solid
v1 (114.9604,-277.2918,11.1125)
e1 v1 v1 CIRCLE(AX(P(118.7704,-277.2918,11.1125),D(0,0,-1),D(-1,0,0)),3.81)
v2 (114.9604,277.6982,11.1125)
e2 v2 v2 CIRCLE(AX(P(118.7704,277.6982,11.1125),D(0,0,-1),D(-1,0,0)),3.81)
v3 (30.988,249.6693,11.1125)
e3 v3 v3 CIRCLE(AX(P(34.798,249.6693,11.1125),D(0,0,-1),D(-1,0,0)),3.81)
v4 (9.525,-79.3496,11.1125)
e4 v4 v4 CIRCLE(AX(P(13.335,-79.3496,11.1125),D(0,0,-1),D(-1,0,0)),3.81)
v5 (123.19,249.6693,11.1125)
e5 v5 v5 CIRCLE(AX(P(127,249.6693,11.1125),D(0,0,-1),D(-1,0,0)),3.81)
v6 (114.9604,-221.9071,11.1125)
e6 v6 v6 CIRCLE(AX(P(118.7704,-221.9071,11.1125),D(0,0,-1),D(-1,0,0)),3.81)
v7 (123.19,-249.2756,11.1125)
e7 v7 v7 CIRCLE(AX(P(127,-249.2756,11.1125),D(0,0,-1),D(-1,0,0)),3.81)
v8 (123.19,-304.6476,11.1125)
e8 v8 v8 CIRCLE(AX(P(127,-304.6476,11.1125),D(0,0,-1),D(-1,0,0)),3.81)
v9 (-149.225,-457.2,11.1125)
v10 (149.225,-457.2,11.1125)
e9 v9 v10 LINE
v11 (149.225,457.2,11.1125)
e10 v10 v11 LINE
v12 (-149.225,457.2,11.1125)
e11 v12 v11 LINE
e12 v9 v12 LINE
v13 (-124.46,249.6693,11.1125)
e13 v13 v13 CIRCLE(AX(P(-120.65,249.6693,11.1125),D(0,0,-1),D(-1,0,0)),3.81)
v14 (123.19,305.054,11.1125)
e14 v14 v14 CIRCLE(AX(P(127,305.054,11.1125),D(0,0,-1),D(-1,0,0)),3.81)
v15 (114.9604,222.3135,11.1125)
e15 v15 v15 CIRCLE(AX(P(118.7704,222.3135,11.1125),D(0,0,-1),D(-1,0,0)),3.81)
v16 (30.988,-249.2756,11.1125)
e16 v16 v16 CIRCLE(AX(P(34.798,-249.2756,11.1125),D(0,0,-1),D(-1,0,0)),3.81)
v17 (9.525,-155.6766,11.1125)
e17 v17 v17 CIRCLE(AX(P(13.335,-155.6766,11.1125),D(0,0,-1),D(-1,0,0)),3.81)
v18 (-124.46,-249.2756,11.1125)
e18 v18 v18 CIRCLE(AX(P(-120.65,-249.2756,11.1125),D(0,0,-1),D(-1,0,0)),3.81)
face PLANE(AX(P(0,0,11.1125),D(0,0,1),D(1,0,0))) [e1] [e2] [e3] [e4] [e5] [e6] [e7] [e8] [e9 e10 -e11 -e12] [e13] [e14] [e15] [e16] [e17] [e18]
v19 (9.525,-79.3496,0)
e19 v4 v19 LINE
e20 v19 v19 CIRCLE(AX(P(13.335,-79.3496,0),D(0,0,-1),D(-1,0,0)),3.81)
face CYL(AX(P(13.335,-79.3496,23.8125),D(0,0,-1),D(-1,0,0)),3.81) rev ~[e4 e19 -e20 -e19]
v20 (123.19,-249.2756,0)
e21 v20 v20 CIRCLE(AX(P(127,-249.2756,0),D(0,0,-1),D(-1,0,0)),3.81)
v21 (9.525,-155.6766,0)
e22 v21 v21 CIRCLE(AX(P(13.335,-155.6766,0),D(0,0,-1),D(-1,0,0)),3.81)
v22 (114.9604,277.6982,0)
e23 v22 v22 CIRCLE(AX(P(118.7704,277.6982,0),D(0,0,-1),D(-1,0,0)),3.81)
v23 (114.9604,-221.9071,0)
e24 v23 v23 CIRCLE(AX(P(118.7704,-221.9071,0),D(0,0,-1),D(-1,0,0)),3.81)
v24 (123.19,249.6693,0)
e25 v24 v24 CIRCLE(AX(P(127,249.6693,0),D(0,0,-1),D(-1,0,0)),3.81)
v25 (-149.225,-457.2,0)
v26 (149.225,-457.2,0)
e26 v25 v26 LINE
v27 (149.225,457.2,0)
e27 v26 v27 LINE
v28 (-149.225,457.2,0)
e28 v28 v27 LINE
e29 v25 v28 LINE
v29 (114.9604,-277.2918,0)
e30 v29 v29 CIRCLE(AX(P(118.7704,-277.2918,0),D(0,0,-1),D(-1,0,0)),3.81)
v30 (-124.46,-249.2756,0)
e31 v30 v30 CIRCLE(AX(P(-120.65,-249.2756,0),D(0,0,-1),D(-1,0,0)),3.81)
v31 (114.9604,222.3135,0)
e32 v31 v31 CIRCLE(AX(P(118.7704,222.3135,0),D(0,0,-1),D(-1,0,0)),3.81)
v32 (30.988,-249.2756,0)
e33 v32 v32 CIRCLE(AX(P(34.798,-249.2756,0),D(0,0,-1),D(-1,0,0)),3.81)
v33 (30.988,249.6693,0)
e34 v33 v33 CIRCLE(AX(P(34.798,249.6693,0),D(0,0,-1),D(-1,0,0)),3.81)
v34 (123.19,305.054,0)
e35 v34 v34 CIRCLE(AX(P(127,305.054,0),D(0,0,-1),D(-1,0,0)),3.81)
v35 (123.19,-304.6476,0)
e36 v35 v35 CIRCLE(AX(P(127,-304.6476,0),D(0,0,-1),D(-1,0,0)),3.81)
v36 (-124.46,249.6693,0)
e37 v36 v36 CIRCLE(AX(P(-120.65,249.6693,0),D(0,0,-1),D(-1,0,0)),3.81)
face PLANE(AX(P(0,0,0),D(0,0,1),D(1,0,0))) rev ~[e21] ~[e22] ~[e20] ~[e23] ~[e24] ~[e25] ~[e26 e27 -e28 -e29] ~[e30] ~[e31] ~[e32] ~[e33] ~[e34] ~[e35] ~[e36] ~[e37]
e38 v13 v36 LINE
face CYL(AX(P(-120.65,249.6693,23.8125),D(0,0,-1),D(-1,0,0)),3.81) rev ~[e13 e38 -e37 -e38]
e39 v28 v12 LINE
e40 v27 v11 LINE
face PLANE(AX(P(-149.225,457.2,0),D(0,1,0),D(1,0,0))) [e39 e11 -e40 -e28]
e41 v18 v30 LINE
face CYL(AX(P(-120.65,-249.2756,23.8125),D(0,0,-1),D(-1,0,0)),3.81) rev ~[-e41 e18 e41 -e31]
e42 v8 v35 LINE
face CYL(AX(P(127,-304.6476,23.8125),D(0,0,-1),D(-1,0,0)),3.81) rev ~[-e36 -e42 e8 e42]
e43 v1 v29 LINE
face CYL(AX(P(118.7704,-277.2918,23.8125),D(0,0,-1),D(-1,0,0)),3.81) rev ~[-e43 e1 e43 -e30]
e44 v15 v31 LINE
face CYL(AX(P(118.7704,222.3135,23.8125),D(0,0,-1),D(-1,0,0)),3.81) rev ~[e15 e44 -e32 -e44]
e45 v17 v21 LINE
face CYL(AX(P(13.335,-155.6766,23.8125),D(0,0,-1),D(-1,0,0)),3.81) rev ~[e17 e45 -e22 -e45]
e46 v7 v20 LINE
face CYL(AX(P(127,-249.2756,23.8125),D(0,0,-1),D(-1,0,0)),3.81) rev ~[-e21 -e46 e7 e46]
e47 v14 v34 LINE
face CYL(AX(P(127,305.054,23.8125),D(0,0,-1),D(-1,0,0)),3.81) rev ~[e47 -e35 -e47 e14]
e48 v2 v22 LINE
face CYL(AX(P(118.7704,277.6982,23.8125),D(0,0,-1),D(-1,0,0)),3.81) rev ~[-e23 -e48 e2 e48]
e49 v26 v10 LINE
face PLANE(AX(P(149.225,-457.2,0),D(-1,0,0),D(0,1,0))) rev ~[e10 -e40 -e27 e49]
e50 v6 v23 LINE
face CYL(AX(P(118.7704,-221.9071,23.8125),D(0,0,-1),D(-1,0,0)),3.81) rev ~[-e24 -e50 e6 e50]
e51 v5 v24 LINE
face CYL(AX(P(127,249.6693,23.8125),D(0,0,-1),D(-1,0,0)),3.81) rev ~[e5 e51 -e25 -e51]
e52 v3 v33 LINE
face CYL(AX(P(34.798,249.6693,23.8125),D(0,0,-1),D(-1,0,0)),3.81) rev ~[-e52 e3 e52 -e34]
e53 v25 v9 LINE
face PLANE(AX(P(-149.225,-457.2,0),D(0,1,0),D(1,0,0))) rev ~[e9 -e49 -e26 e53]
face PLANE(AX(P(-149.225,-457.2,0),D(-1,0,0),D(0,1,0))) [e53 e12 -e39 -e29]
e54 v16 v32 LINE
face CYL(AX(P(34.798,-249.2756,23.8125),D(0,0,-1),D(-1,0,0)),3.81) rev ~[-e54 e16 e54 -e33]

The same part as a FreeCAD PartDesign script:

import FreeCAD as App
import Part
import Sketcher

V = App.Vector
Q = App.Units.Quantity

doc = App.newDocument("Part")
body = doc.addObject("PartDesign::Body", "Body")

sketch1 = doc.addObject("Sketcher::SketchObject", "Sketch")
body.addObject(sketch1)
sketch1.AttachmentSupport = (doc.XY_Plane, [""])
sketch1.MapMode = "FlatFace"
sketch1.addGeometry([
    Part.LineSegment(V(-149, 457, 0), V(-149, -457, 0)),
    Part.LineSegment(V(-149, -457, 0), V(149, -457, 0)),
    Part.LineSegment(V(149, -457, 0), V(149, 457, 0)),
    Part.LineSegment(V(149, 457, 0), V(-149, 457, 0)),
], False)
sketch1.addConstraint([
    Sketcher.Constraint("Coincident", 0, 2, 1, 1),
    Sketcher.Constraint("Coincident", 1, 2, 2, 1),
    Sketcher.Constraint("Coincident", 2, 2, 3, 1),
    Sketcher.Constraint("Coincident", 3, 2, 0, 1),
    Sketcher.Constraint("Vertical", 0),
    Sketcher.Constraint("Horizontal", 1),
    Sketcher.Constraint("Vertical", 2),
    Sketcher.Constraint("Horizontal", 3),
    Sketcher.Constraint("Symmetric", 0, 2, 2, 2, -1, 1),
    Sketcher.Constraint("DistanceY", 0, 2, 0, 1, Q("36 in")),
    Sketcher.Constraint("DistanceX", 1, 1, 1, 2, Q("11.75 in")),
])
pad1 = doc.addObject("PartDesign::Pad", "Pad")
body.addObject(pad1)
pad1.Profile = sketch1
pad1.Length = Q("0.4375 in")

sketch2 = doc.addObject("Sketcher::SketchObject", "Sketch001")
body.addObject(sketch2)
sketch2.AttachmentSupport = (doc.XY_Plane, [""])
sketch2.MapMode = "FlatFace"
sketch2.AttachmentOffset = App.Placement(V(0, 0, 0.4375 * 25.4), App.Rotation())
sketch2.addGeometry([
    Part.Circle(V(127, -304.6, 0), V(0, 0, 1), 3.8),
    Part.Circle(V(118.8, -277.3, 0), V(0, 0, 1), 3.8),
    Part.Circle(V(127, -249.3, 0), V(0, 0, 1), 3.8),
    Part.Circle(V(118.8, -221.9, 0), V(0, 0, 1), 3.8),
    Part.Circle(V(118.8, 222.3, 0), V(0, 0, 1), 3.8),
    Part.Circle(V(127, 249.7, 0), V(0, 0, 1), 3.8),
    Part.Circle(V(118.8, 277.7, 0), V(0, 0, 1), 3.8),
    Part.Circle(V(127, 305.1, 0), V(0, 0, 1), 3.8),
    Part.Circle(V(34.8, 249.7, 0), V(0, 0, 1), 3.8),
    Part.Circle(V(-120.7, 249.7, 0), V(0, 0, 1), 3.8),
    Part.Circle(V(34.8, -249.3, 0), V(0, 0, 1), 3.8),
    Part.Circle(V(-120.7, -249.3, 0), V(0, 0, 1), 3.8),
    Part.Circle(V(13.3, -155.7, 0), V(0, 0, 1), 3.8),
    Part.Circle(V(13.3, -79.3, 0), V(0, 0, 1), 3.8),
], False)
sketch2.addConstraint([
    Sketcher.Constraint("Equal", 0, 1),
    Sketcher.Constraint("Equal", 1, 2),
    Sketcher.Constraint("Equal", 2, 3),
    Sketcher.Constraint("Equal", 3, 4),
    Sketcher.Constraint("Equal", 4, 5),
    Sketcher.Constraint("Equal", 5, 6),
    Sketcher.Constraint("Equal", 6, 7),
    Sketcher.Constraint("Equal", 7, 8),
    Sketcher.Constraint("Equal", 8, 9),
    Sketcher.Constraint("Equal", 9, 10),
    Sketcher.Constraint("Equal", 10, 11),
    Sketcher.Constraint("Equal", 11, 12),
    Sketcher.Constraint("Equal", 12, 13),
    Sketcher.Constraint("Horizontal", 5, 3, 8, 3),
    Sketcher.Constraint("Horizontal", 8, 3, 9, 3),
    Sketcher.Constraint("Horizontal", 2, 3, 10, 3),
    Sketcher.Constraint("Horizontal", 10, 3, 11, 3),
    Sketcher.Constraint("Vertical", 0, 3, 2, 3),
    Sketcher.Constraint("Vertical", 1, 3, 3, 3),
    Sketcher.Constraint("Vertical", 3, 3, 4, 3),
    Sketcher.Constraint("Vertical", 2, 3, 5, 3),
    Sketcher.Constraint("Vertical", 4, 3, 6, 3),
    Sketcher.Constraint("Vertical", 5, 3, 7, 3),
    Sketcher.Constraint("Vertical", 8, 3, 10, 3),
    Sketcher.Constraint("Vertical", 9, 3, 11, 3),
    Sketcher.Constraint("Vertical", 12, 3, 13, 3),
    Sketcher.Constraint("Diameter", 0, Q("0.3 in")),
    Sketcher.Constraint("DistanceX", -1, 1, 0, 3, Q("5 in")),
    Sketcher.Constraint("DistanceY", -1, 1, 7, 3, Q("12.01 in")),
    Sketcher.Constraint("DistanceX", -1, 1, 8, 3, Q("1.37 in")),
    Sketcher.Constraint("DistanceX", 9, 3, -1, 1, Q("4.75 in")),
    Sketcher.Constraint("DistanceY", 0, 3, 2, 3, Q("2.18 in")),
    Sketcher.Constraint("DistanceY", 1, 3, 6, 3, Q("21.85 in")),
    Sketcher.Constraint("DistanceY", 10, 3, 13, 3, Q("6.69 in")),
    Sketcher.Constraint("DistanceY", 0, 3, -1, 1, Q("11.994 in")),
    Sketcher.Constraint("DistanceX", -1, 1, 1, 3, Q("4.676 in")),
    Sketcher.Constraint("DistanceY", 1, 3, -1, 1, Q("10.917 in")),
    Sketcher.Constraint("DistanceX", -1, 1, 12, 3, Q("0.525 in")),
    Sketcher.Constraint("DistanceY", 12, 3, -1, 1, Q("6.129 in")),
    Sketcher.Constraint("DistanceY", 3, 3, 4, 3, Q("17.489 in")),
    Sketcher.Constraint("DistanceY", 4, 3, 5, 3, Q("1.077 in")),
    Sketcher.Constraint("DistanceY", 3, 3, -1, 1, Q("8.7365 in")),
])
doc.recompute()
hole = doc.addObject("PartDesign::Hole", "Hole")
body.addObject(hole)
hole.Profile = sketch2
hole.ThreadType = "None"
hole.Diameter = Q("0.3 in")
hole.DepthType = "Dimension"
hole.Depth = Q("0.5 in")
hole.DrillPoint = "Flat"

doc.recompute()
